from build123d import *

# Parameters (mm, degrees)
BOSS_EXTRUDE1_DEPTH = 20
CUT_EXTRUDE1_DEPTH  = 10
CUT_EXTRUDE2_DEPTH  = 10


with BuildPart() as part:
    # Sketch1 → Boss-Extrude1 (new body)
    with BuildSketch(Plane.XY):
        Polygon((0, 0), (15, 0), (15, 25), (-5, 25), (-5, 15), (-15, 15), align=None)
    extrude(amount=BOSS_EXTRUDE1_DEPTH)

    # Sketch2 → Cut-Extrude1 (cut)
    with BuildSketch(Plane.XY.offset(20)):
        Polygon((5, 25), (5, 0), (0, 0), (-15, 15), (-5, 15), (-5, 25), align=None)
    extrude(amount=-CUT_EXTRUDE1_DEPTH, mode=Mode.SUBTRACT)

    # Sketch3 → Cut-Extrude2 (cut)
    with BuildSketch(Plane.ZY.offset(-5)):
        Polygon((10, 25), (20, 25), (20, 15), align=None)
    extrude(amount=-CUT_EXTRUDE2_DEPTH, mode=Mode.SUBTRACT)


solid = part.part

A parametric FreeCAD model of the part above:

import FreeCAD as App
import Part
import Sketcher

doc = App.newDocument("Part")
params = doc.addObject("Spreadsheet::Sheet", "Params")
for row, (alias, value) in enumerate([
    ("sketch1_width", "15 mm"),
    ("sketch1_width2", "20 mm"),
    ("sketch1_width3", "10 mm"),
    ("sketch1_height", "25 mm"),
    ("pad1_length", "20 mm"),
    ("sketch2_width", "10 mm"),
    ("sketch2_width2", "5 mm"),
    ("sketch2_height", "25 mm"),
    ("pocket1_length", "10 mm"),
    ("sketch3_width", "10 mm"),
    ("pocket2_length", "10 mm"),
], start=1):
    params.set(f"A{row}", alias)
    params.set(f"B{row}", "=" + value)
    params.setAlias(f"B{row}", alias)

body = doc.addObject("PartDesign::Body", "Body")

# Sketch on XY plane
sketch1 = body.newObject("Sketcher::SketchObject", "Sketch")
sketch1.AttachmentSupport = (doc.getObject("XY_Plane"), [""])
sketch1.MapMode = "FlatFace"
sketch1.addGeometry([
    Part.LineSegment(App.Vector(0, 0, 0), App.Vector(15, 0, 0)),  # 0
    Part.LineSegment(App.Vector(15, 0, 0), App.Vector(15, 25, 0)),  # 1
    Part.LineSegment(App.Vector(15, 25, 0), App.Vector(-5, 25, 0)),  # 2
    Part.LineSegment(App.Vector(-5, 25, 0), App.Vector(-5, 15, 0)),  # 3
    Part.LineSegment(App.Vector(-5, 15, 0), App.Vector(-15, 15, 0)),  # 4
    Part.LineSegment(App.Vector(-15, 15, 0), App.Vector(0, 0, 0)),  # 5
], False)
sketch1.addConstraint([
    Sketcher.Constraint("Coincident", 0, 2, 1, 1),
    Sketcher.Constraint("Coincident", 1, 2, 2, 1),
    Sketcher.Constraint("Coincident", 2, 2, 3, 1),
    Sketcher.Constraint("Coincident", 3, 2, 4, 1),
    Sketcher.Constraint("Coincident", 4, 2, 5, 1),
    Sketcher.Constraint("Coincident", 5, 2, 0, 1),
    Sketcher.Constraint("Horizontal", 0),
    Sketcher.Constraint("Vertical", 1),
    Sketcher.Constraint("Horizontal", 2),
    Sketcher.Constraint("Vertical", 3),
    Sketcher.Constraint("Horizontal", 4),
    Sketcher.Constraint("Coincident", 5, 2, -1, 1),
    Sketcher.Constraint("Equal", 4, 3),
    Sketcher.Constraint("DistanceX", 0, 1, 0, 2, 15.0),
    Sketcher.Constraint("DistanceX", 2, 2, 2, 1, 20.0),
    Sketcher.Constraint("DistanceX", 4, 2, 4, 1, 10.0),
    Sketcher.Constraint("DistanceY", 1, 1, 1, 2, 25.0),
])
sketch1.setExpression("Constraints[13]", "Params.sketch1_width")
sketch1.setExpression("Constraints[14]", "Params.sketch1_width2")
sketch1.setExpression("Constraints[15]", "Params.sketch1_width3")
sketch1.setExpression("Constraints[16]", "Params.sketch1_height")
pad1 = body.newObject("PartDesign::Pad", "Pad")
pad1.Profile = sketch1
pad1.setExpression("Length", "Params.pad1_length")

# Sketch on XY plane
sketch2 = body.newObject("Sketcher::SketchObject", "Sketch001")
sketch2.AttachmentSupport = (doc.getObject("XY_Plane"), [""])
sketch2.MapMode = "FlatFace"
sketch2.AttachmentOffset = App.Placement(App.Vector(0, 0, 20), App.Rotation())
sketch2.addGeometry([
    Part.LineSegment(App.Vector(5, 0, 0), App.Vector(5, 25, 0)),  # 0
    Part.LineSegment(App.Vector(5, 25, 0), App.Vector(-5, 25, 0)),  # 1
    Part.LineSegment(App.Vector(-5, 25, 0), App.Vector(-5, 15, 0)),  # 2
    Part.LineSegment(App.Vector(-5, 15, 0), App.Vector(-15, 15, 0)),  # 3
    Part.LineSegment(App.Vector(-15, 15, 0), App.Vector(0, 0, 0)),  # 4
    Part.LineSegment(App.Vector(0, 0, 0), App.Vector(5, 0, 0)),  # 5
], False)
sketch2.addConstraint([
    Sketcher.Constraint("Coincident", 0, 2, 1, 1),
    Sketcher.Constraint("Coincident", 1, 2, 2, 1),
    Sketcher.Constraint("Coincident", 2, 2, 3, 1),
    Sketcher.Constraint("Coincident", 3, 2, 4, 1),
    Sketcher.Constraint("Coincident", 4, 2, 5, 1),
    Sketcher.Constraint("Coincident", 5, 2, 0, 1),
    Sketcher.Constraint("Vertical", 0),
    Sketcher.Constraint("Horizontal", 1),
    Sketcher.Constraint("Vertical", 2),
    Sketcher.Constraint("Horizontal", 3),
    Sketcher.Constraint("Horizontal", 5),
    Sketcher.Constraint("Coincident", 4, 2, -1, 1),
    Sketcher.Constraint("Equal", 1, 3),
    Sketcher.Constraint("Equal", 3, 2),
    Sketcher.Constraint("DistanceX", 1, 2, 1, 1, 10.0),
    Sketcher.Constraint("DistanceX", 5, 1, 5, 2, 5.0),
    Sketcher.Constraint("DistanceY", 0, 1, 0, 2, 25.0),
])
sketch2.setExpression("Constraints[14]", "Params.sketch2_width")
sketch2.setExpression("Constraints[15]", "Params.sketch2_width2")
sketch2.setExpression("Constraints[16]", "Params.sketch2_height")
pocket1 = body.newObject("PartDesign::Pocket", "Pocket")
pocket1.Profile = sketch2
pocket1.setExpression("Length", "Params.pocket1_length")

# Sketch on YZ plane
sketch3 = body.newObject("Sketcher::SketchObject", "Sketch002")
sketch3.AttachmentSupport = (doc.getObject("YZ_Plane"), [""])
sketch3.MapMode = "FlatFace"
sketch3.AttachmentOffset = App.Placement(App.Vector(0, 0, 5), App.Rotation())
sketch3.addGeometry([
    Part.LineSegment(App.Vector(25, 20, 0), App.Vector(25, 10, 0)),
    Part.LineSegment(App.Vector(25, 10, 0), App.Vector(15, 20, 0)),
    Part.LineSegment(App.Vector(15, 20, 0), App.Vector(25, 20, 0)),
], False)
sketch3.addConstraint([
    Sketcher.Constraint("Coincident", 0, 2, 1, 1),
    Sketcher.Constraint("Coincident", 1, 2, 2, 1),
    Sketcher.Constraint("Coincident", 2, 2, 0, 1),
    Sketcher.Constraint("Vertical", 0),
    Sketcher.Constraint("Horizontal", 2),
    Sketcher.Constraint("Equal", 2, 0),
    Sketcher.Constraint("DistanceX", 2, 1, 2, 2, 10.0),
    Sketcher.Constraint("DistanceX", -1, 1, 0, 2, 25.0),
    Sketcher.Constraint("DistanceY", -1, 1, 0, 2, 10.0),
])
sketch3.setExpression("Constraints[6]", "Params.sketch3_width")
pocket2 = body.newObject("PartDesign::Pocket", "Pocket001")
pocket2.Profile = sketch3
pocket2.setExpression("Length", "Params.pocket2_length")
pocket2.Reversed = True

doc.recompute()
